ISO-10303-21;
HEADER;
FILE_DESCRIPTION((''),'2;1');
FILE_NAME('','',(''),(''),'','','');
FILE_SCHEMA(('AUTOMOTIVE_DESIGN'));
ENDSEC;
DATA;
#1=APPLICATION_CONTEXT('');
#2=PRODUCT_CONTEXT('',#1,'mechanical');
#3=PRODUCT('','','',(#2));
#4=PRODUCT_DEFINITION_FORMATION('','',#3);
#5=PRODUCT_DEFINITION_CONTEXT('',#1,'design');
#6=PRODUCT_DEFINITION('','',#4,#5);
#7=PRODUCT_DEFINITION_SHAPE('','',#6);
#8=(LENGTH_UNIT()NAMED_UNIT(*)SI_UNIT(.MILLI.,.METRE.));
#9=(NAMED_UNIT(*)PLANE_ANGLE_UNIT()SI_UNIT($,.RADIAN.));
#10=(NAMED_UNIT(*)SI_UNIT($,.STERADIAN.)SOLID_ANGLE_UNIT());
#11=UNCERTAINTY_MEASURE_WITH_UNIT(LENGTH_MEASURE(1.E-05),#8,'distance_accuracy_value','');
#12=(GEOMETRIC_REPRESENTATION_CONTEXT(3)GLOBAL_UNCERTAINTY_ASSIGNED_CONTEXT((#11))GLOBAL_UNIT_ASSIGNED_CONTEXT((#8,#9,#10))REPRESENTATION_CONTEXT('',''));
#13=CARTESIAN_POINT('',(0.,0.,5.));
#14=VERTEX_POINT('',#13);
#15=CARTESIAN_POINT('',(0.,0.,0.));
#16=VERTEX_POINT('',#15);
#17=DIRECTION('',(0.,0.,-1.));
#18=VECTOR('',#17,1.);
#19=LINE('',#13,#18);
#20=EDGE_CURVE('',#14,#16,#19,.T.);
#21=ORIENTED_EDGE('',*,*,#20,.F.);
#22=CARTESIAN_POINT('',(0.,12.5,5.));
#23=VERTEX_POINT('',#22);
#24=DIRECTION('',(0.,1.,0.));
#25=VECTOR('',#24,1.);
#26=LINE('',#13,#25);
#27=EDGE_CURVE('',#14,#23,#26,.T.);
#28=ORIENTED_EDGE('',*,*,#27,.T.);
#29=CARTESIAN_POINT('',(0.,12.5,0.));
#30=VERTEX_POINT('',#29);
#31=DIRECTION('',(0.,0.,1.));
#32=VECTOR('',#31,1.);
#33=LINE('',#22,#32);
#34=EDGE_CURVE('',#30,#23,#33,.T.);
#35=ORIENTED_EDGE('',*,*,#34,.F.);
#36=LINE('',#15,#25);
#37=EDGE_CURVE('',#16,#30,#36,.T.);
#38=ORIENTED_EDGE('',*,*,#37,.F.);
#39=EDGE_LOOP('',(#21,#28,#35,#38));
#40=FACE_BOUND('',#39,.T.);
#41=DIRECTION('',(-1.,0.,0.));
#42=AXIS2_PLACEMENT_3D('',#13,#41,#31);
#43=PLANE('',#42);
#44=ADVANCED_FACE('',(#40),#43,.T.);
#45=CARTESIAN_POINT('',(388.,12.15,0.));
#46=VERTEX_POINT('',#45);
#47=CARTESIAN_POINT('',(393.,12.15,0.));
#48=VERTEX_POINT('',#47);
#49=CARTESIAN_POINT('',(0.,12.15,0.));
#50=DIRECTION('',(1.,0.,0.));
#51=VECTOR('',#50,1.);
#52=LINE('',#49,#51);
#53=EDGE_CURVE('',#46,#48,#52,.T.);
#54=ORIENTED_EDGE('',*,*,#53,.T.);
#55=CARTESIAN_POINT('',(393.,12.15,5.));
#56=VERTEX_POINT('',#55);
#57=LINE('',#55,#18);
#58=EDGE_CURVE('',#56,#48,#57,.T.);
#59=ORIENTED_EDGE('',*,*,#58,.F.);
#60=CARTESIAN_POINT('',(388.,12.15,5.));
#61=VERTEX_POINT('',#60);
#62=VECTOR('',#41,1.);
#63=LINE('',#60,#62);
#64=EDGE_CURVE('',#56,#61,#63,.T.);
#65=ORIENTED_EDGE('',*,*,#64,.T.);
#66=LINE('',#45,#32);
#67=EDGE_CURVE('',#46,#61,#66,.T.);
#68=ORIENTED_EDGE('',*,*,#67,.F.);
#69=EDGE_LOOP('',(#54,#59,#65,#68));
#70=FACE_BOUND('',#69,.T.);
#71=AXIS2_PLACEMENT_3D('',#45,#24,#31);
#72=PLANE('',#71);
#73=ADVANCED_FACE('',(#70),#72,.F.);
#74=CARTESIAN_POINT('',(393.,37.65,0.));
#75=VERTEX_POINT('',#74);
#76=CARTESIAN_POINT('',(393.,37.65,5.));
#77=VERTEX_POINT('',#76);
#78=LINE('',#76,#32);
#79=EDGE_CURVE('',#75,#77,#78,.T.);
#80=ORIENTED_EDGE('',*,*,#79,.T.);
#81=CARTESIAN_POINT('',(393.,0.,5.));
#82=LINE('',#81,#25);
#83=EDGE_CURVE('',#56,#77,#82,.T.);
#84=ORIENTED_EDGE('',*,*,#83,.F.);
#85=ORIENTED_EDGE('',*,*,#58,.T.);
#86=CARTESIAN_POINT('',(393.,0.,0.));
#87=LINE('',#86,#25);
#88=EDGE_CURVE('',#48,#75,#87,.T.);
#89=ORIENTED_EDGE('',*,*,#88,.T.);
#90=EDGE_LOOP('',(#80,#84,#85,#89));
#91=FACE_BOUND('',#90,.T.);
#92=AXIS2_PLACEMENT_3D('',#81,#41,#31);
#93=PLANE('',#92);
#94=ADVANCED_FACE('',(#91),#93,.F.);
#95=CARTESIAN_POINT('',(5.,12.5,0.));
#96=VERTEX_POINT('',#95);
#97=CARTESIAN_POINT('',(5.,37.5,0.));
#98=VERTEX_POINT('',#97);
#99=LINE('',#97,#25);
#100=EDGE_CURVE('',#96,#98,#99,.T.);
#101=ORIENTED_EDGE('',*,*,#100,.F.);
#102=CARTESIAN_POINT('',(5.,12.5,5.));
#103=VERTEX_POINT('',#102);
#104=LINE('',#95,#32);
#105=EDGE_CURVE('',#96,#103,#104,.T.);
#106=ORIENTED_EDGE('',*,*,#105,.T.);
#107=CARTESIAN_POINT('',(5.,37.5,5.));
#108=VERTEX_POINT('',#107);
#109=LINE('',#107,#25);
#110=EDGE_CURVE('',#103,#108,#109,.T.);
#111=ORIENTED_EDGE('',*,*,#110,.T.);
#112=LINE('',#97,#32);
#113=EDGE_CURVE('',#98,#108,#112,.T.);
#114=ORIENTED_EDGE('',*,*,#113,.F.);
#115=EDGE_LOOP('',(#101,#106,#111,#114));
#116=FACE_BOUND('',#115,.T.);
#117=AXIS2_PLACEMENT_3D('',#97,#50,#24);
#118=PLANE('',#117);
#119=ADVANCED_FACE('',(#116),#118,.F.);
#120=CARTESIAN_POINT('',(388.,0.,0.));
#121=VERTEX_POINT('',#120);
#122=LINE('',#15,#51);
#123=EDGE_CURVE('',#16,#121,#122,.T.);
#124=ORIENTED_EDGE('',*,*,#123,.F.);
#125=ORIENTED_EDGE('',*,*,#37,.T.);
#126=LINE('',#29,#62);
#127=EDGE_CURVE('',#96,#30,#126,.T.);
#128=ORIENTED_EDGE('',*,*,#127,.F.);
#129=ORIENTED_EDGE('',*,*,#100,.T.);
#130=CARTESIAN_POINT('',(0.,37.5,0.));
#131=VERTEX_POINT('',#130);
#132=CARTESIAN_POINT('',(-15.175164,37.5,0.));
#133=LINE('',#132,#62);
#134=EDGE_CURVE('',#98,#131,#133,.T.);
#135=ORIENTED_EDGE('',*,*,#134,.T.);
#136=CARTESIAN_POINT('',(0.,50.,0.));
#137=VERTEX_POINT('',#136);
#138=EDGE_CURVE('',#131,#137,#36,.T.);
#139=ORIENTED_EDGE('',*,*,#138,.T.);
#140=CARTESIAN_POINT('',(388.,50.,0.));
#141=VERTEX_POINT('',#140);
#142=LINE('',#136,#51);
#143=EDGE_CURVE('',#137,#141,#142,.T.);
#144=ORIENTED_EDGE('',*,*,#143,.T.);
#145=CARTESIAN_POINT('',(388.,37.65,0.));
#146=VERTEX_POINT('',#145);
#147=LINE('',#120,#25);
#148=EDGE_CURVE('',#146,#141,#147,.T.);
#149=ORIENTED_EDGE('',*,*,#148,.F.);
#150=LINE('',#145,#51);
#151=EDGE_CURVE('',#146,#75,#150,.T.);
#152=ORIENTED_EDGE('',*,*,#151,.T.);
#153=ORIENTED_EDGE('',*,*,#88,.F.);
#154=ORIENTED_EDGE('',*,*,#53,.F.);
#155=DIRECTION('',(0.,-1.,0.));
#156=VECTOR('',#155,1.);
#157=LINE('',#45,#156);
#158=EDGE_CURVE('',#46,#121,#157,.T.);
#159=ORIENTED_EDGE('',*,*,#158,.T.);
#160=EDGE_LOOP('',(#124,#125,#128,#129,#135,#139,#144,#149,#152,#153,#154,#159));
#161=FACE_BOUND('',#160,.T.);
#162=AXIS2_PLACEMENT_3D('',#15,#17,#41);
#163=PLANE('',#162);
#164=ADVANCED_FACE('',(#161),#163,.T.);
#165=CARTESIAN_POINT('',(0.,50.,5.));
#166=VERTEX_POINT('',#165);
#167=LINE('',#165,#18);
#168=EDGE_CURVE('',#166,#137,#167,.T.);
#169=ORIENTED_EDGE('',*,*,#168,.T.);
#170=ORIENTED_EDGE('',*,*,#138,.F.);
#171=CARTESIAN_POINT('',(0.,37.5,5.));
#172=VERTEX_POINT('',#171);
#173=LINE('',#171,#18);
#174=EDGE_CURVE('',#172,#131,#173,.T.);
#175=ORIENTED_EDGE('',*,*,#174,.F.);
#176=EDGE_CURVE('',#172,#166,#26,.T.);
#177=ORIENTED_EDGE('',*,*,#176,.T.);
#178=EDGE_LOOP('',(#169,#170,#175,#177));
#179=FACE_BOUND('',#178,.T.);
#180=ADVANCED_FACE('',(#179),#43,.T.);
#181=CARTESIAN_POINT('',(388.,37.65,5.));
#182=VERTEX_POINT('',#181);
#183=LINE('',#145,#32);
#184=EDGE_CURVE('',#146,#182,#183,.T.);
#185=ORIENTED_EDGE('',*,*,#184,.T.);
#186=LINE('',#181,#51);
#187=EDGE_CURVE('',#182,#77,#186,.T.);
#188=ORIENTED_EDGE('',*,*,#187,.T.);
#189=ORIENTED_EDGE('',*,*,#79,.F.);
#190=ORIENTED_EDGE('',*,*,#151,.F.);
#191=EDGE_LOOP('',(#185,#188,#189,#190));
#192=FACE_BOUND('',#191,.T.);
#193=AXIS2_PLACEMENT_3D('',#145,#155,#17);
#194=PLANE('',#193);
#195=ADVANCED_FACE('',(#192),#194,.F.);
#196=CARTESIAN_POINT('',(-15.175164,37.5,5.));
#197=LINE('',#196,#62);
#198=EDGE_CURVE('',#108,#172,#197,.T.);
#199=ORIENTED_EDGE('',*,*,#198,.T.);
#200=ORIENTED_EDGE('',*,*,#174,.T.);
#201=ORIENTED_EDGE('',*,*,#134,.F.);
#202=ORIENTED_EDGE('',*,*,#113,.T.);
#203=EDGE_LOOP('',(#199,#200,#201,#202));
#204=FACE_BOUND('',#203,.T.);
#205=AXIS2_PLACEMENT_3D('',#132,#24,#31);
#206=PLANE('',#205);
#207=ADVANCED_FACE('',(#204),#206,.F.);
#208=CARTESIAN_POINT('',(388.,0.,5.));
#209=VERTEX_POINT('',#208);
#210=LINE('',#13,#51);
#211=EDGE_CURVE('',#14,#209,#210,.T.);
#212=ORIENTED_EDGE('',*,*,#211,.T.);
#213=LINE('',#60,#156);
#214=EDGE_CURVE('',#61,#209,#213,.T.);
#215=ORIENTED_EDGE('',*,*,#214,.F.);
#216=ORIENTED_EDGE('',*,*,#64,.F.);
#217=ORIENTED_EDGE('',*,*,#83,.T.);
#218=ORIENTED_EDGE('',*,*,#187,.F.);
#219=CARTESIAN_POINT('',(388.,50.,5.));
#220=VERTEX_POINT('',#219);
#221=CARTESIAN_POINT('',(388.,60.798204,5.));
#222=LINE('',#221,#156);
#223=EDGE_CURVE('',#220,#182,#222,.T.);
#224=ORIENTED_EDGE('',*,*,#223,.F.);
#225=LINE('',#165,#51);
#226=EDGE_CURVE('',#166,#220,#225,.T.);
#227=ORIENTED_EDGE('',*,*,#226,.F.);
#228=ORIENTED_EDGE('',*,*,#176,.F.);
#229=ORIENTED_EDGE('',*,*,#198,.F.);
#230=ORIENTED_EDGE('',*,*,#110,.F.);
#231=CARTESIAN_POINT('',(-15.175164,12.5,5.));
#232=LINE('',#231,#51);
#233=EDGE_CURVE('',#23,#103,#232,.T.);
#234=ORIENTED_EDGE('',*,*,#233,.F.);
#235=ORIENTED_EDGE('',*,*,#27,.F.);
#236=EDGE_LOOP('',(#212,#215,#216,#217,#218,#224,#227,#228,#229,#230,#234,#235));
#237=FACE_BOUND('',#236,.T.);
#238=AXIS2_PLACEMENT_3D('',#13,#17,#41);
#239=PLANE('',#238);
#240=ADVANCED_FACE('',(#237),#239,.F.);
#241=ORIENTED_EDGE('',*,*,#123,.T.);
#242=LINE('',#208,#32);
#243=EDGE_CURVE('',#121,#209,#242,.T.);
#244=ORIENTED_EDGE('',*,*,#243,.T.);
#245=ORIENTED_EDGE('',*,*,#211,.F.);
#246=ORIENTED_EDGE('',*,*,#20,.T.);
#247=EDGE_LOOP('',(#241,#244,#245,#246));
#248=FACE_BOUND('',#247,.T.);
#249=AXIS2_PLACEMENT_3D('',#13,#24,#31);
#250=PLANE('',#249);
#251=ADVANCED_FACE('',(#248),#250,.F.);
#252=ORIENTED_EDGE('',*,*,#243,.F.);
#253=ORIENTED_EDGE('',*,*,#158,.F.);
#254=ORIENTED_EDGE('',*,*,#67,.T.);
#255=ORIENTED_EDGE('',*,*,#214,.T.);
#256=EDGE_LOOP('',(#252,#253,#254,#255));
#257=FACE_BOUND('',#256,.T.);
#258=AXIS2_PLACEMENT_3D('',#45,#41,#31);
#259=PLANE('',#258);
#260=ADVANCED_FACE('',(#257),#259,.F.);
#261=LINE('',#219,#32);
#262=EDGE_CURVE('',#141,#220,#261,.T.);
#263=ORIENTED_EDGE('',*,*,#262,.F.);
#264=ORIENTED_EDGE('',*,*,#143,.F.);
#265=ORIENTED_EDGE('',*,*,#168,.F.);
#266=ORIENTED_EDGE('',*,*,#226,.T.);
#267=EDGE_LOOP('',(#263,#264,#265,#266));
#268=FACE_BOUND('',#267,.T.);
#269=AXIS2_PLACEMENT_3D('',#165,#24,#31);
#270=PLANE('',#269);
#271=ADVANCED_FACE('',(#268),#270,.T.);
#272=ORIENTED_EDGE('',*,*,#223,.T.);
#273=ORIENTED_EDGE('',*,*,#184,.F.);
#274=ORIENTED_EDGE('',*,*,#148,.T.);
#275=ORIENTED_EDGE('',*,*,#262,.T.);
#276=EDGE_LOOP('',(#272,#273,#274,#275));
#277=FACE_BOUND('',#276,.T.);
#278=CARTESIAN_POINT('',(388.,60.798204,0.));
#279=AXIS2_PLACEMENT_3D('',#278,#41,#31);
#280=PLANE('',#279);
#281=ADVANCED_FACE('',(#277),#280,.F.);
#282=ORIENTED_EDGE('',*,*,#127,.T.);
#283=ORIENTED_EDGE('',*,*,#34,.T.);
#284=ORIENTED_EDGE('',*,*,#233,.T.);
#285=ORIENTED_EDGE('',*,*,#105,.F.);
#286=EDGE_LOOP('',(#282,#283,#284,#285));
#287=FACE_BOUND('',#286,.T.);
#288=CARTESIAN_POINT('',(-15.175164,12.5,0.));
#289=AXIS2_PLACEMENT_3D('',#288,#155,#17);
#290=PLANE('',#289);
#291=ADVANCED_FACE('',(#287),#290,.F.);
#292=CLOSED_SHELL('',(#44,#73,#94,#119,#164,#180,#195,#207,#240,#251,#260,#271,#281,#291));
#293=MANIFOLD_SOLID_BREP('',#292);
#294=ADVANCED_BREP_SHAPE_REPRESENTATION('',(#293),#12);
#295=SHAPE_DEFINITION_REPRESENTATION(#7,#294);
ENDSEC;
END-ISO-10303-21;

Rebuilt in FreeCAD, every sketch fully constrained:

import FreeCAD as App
import Part
import Sketcher

doc = App.newDocument("Part")
body = doc.addObject("PartDesign::Body", "Body")

sketch1 = body.newObject("Sketcher::SketchObject", "Sketch")
sketch1.AttachmentSupport = (doc.getObject("XY_Plane"), [""])
sketch1.MapMode = "FlatFace"
sketch1.addGeometry([
    Part.LineSegment(App.Vector(0, 50, 0), App.Vector(0, 0, 0)),
    Part.LineSegment(App.Vector(0, 0, 0), App.Vector(393, 0, 0)),
    Part.LineSegment(App.Vector(393, 0, 0), App.Vector(393, 50, 0)),
    Part.LineSegment(App.Vector(393, 50, 0), App.Vector(0, 50, 0)),
], False)
sketch1.addConstraint([
    Sketcher.Constraint("Coincident", 0, 2, 1, 1),
    Sketcher.Constraint("Coincident", 1, 2, 2, 1),
    Sketcher.Constraint("Coincident", 2, 2, 3, 1),
    Sketcher.Constraint("Coincident", 3, 2, 0, 1),
    Sketcher.Constraint("Vertical", 0),
    Sketcher.Constraint("Horizontal", 1),
    Sketcher.Constraint("Vertical", 2),
    Sketcher.Constraint("Horizontal", 3),
    Sketcher.Constraint("Coincident", 0, 2, -1, 1),
    Sketcher.Constraint("DistanceX", 1, 1, 1, 2, 393.0),
    Sketcher.Constraint("DistanceY", 0, 2, 0, 1, 50.0),
])
pad1 = body.newObject("PartDesign::Pad", "Pad")
pad1.Profile = sketch1
pad1.Length = 5

sketch2 = body.newObject("Sketcher::SketchObject", "Sketch001")
sketch2.AttachmentSupport = (doc.getObject("XY_Plane"), [""])
sketch2.MapMode = "FlatFace"
sketch2.AttachmentOffset = App.Placement(App.Vector(0, 0, 5), App.Rotation())
sketch2.addGeometry([
    Part.LineSegment(App.Vector(-15, 38, 0), App.Vector(-15, 12, 0)),
    Part.LineSegment(App.Vector(-15, 12, 0), App.Vector(5, 12, 0)),
    Part.LineSegment(App.Vector(5, 12, 0), App.Vector(5, 38, 0)),
    Part.LineSegment(App.Vector(5, 38, 0), App.Vector(-15, 38, 0)),
    Part.LineSegment(App.Vector(388, 61, 0), App.Vector(388, 38, 0)),
    Part.LineSegment(App.Vector(388, 38, 0), App.Vector(441, 38, 0)),
    Part.LineSegment(App.Vector(441, 38, 0), App.Vector(441, 61, 0)),
    Part.LineSegment(App.Vector(441, 61, 0), App.Vector(388, 61, 0)),
    Part.LineSegment(App.Vector(388, 12, 0), App.Vector(388, -46, 0)),
    Part.LineSegment(App.Vector(388, -46, 0), App.Vector(419, -46, 0)),
    Part.LineSegment(App.Vector(419, -46, 0), App.Vector(419, 12, 0)),
    Part.LineSegment(App.Vector(419, 12, 0), App.Vector(388, 12, 0)),
], False)
sketch2.addConstraint([
    Sketcher.Constraint("Coincident", 0, 2, 1, 1),
    Sketcher.Constraint("Coincident", 1, 2, 2, 1),
    Sketcher.Constraint("Coincident", 2, 2, 3, 1),
    Sketcher.Constraint("Coincident", 3, 2, 0, 1),
    Sketcher.Constraint("Coincident", 4, 2, 5, 1),
    Sketcher.Constraint("Coincident", 5, 2, 6, 1),
    Sketcher.Constraint("Coincident", 6, 2, 7, 1),
    Sketcher.Constraint("Coincident", 7, 2, 4, 1),
    Sketcher.Constraint("Coincident", 8, 2, 9, 1),
    Sketcher.Constraint("Coincident", 9, 2, 10, 1),
    Sketcher.Constraint("Coincident", 10, 2, 11, 1),
    Sketcher.Constraint("Coincident", 11, 2, 8, 1),
    Sketcher.Constraint("Vertical", 0),
    Sketcher.Constraint("Horizontal", 1),
    Sketcher.Constraint("Vertical", 2),
    Sketcher.Constraint("Horizontal", 3),
    Sketcher.Constraint("Vertical", 4),
    Sketcher.Constraint("Horizontal", 5),
    Sketcher.Constraint("Vertical", 6),
    Sketcher.Constraint("Horizontal", 7),
    Sketcher.Constraint("Vertical", 8),
    Sketcher.Constraint("Horizontal", 9),
    Sketcher.Constraint("Vertical", 10),
    Sketcher.Constraint("Horizontal", 11),
    Sketcher.Constraint("Vertical", 7, 2, 8, 2),
    Sketcher.Constraint("DistanceY", 0, 2, 0, 1, 25.0),
    Sketcher.Constraint("DistanceX", -1, 1, 1, 2, 5.0),
    Sketcher.Constraint("DistanceX", -1, 1, 4, 2, 388.0),
    Sketcher.Constraint("DistanceY", -1, 1, 0, 2, 12.5),
    Sketcher.Constraint("DistanceY", 10, 2, 5, 2, 25.5),
    Sketcher.Constraint("DistanceY", -1, 1, 4, 2, 37.65),
    Sketcher.Constraint("DistanceX", 5, 1, 5, 2, 52.958841),
    Sketcher.Constraint("DistanceX", 1, 1, 1, 2, 20.175164),
    Sketcher.Constraint("DistanceX", 9, 1, 9, 2, 30.907764),
    Sketcher.Constraint("DistanceY", 4, 2, 4, 1, 23.148204),
    Sketcher.Constraint("DistanceY", 8, 2, 8, 1, 57.768234),
])
pocket1 = body.newObject("PartDesign::Pocket", "Pocket")
pocket1.Profile = sketch2
pocket1.Length = 5

doc.recompute()
